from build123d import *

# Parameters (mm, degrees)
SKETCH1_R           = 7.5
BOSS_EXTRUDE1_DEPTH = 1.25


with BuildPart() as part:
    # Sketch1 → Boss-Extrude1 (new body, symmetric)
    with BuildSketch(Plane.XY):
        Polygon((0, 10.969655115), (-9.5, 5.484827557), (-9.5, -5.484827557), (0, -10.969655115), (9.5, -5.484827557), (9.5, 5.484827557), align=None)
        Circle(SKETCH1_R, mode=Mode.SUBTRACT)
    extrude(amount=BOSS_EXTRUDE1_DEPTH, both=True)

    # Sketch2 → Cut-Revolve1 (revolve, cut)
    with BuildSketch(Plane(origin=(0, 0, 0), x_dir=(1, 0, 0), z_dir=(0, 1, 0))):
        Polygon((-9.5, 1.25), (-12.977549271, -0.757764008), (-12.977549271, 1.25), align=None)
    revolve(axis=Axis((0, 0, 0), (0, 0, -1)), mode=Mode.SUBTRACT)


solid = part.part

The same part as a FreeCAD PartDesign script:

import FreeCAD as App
import Part
import Sketcher
Q = App.Units.Quantity

doc = App.newDocument("Part")
body = doc.addObject("PartDesign::Body", "Body")

# Sketch on XY plane
sketch1 = body.newObject("Sketcher::SketchObject", "Sketch")
sketch1.AttachmentSupport = (doc.getObject("XY_Plane"), [""])
sketch1.MapMode = "FlatFace"
sketch1.addGeometry([
    Part.LineSegment(App.Vector(0, 11, 0), App.Vector(-10, 5, 0)),  # 0
    Part.LineSegment(App.Vector(-10, 5, 0), App.Vector(-10, -5, 0)),  # 1
    Part.LineSegment(App.Vector(-10, -5, 0), App.Vector(0, -11, 0)),  # 2
    Part.LineSegment(App.Vector(0, -11, 0), App.Vector(10, -5, 0)),  # 3
    Part.LineSegment(App.Vector(10, -5, 0), App.Vector(10, 5, 0)),  # 4
    Part.LineSegment(App.Vector(10, 5, 0), App.Vector(0, 11, 0)),  # 5
    Part.Circle(App.Vector(0, 0, 0), App.Vector(0, 0, 1), 8),  # 6
], False)
sketch1.addConstraint([
    Sketcher.Constraint("Coincident", 0, 2, 1, 1),
    Sketcher.Constraint("Coincident", 1, 2, 2, 1),
    Sketcher.Constraint("Coincident", 2, 2, 3, 1),
    Sketcher.Constraint("Coincident", 3, 2, 4, 1),
    Sketcher.Constraint("Coincident", 4, 2, 5, 1),
    Sketcher.Constraint("Coincident", 5, 2, 0, 1),
    Sketcher.Constraint("Vertical", 1),
    Sketcher.Constraint("Vertical", 4),
    Sketcher.Constraint("Coincident", 6, 3, -1, 1),
    Sketcher.Constraint("Symmetric", 0, 2, 3, 2, -1, 1),
    Sketcher.Constraint("Symmetric", 2, 2, 5, 2, -1, 1),
    Sketcher.Constraint("PointOnObject", 2, 2, -2),
    Sketcher.Constraint("Parallel", 2, 5),
    Sketcher.Constraint("Horizontal", 1, 2, 3, 2),
    Sketcher.Constraint("Diameter", 6, 15.0),
    Sketcher.Constraint("Angle", 0, Q("-150 deg")),
    Sketcher.Constraint("DistanceX", 1, 2, 3, 2, 19.0),
    Sketcher.Constraint("DistanceY", 1, 2, 1, 1, 10.969655),
])
pad1 = body.newObject("PartDesign::Pad", "Pad")
pad1.Profile = sketch1
pad1.Length = 2.5
pad1.Midplane = True

# Sketch on XZ plane
sketch2 = body.newObject("Sketcher::SketchObject", "Sketch001")
sketch2.AttachmentSupport = (doc.getObject("XZ_Plane"), [""])
sketch2.MapMode = "FlatFace"
sketch2.addGeometry([
    Part.LineSegment(App.Vector(-13, 0.8, 0), App.Vector(-9.5, -1.2, 0)),
    Part.LineSegment(App.Vector(-9.5, -1.2, 0), App.Vector(-13, -1.2, 0)),
    Part.LineSegment(App.Vector(-13, -1.2, 0), App.Vector(-13, 0.8, 0)),
], False)
sketch2.addConstraint([
    Sketcher.Constraint("Coincident", 0, 2, 1, 1),
    Sketcher.Constraint("Coincident", 1, 2, 2, 1),
    Sketcher.Constraint("Coincident", 2, 2, 0, 1),
    Sketcher.Constraint("Horizontal", 1),
    Sketcher.Constraint("Vertical", 2),
    Sketcher.Constraint("Angle", 0, Q("-30 deg")),
    Sketcher.Constraint("DistanceX", 0, 2, -1, 1, 9.5),
    Sketcher.Constraint("DistanceY", 0, 2, -1, 1, 1.25),
    Sketcher.Constraint("DistanceX", 1, 2, 1, 1, 3.477549),
])
groove = body.newObject("PartDesign::Groove", "Groove")
groove.Profile = sketch2
groove.ReferenceAxis = (sketch2, ["V_Axis"])
groove.Angle = 360

doc.recompute()
